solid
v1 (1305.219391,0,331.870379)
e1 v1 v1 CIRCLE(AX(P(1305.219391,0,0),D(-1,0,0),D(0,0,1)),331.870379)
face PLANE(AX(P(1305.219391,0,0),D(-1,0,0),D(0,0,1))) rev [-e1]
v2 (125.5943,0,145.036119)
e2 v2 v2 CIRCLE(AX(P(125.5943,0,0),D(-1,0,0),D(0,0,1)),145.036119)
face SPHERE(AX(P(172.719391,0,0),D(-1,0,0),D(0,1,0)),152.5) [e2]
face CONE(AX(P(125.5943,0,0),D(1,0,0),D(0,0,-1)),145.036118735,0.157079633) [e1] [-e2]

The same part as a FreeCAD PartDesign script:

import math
import FreeCAD as App
import Part
import Sketcher
from FreeCAD import Vector
Q = App.Units.Quantity

doc = App.newDocument("Part")
body = doc.addObject("PartDesign::Body", "Body")

# Sketch on XY plane
sketch1 = body.newObject("Sketcher::SketchObject", "Sketch")
sketch1.AttachmentSupport = (doc.getObject("XY_Plane"), [""])
sketch1.MapMode = "FlatFace"
sketch1.addGeometry(Part.ArcOfCircle(Part.Circle(Vector(172.719391, 0, 0), Vector(0, 0, 1), 152.5), math.radians(108), math.radians(180)), False)
sketch1.addGeometry(Part.LineSegment(Vector(20.219391, 0, 0), Vector(1305.219391, 0, 0)), False)
sketch1.addGeometry(Part.LineSegment(Vector(1305.219391, 0, 0), Vector(1305.219391, 331.870379, 0)), False)
sketch1.addGeometry(Part.LineSegment(Vector(1305.219391, 331.870379, 0), Vector(125.5943, 145.036119, 0)), False)
sketch1.addConstraint(Sketcher.Constraint("Coincident", 0, 2, 1, 1))
sketch1.addConstraint(Sketcher.Constraint("Coincident", 1, 2, 2, 1))
sketch1.addConstraint(Sketcher.Constraint("Coincident", 2, 2, 3, 1))
sketch1.addConstraint(Sketcher.Constraint("Coincident", 3, 2, 0, 1))
sketch1.addConstraint(Sketcher.Constraint("Horizontal", 1))
sketch1.addConstraint(Sketcher.Constraint("Vertical", 2))
sketch1.addConstraint(Sketcher.Constraint("PointOnObject", 0, 3, -1))
sketch1.addConstraint(Sketcher.Constraint("PointOnObject", 0, 2, -1))
sketch1.addConstraint(Sketcher.Constraint("Radius", 0, 152.5))
sketch1.addConstraint(Sketcher.Constraint("DistanceX", 1, 1, 1, 2, 1285.0))
sketch1.addConstraint(Sketcher.Constraint("Angle", 3, Q("-171 deg")))
sketch1.addConstraint(Sketcher.Constraint("DistanceY", 2, 1, 2, 2, 331.870379))
sketch1.addConstraint(Sketcher.Constraint("DistanceX", -1, 1, 3, 2, 125.5943))
revolution = body.newObject("PartDesign::Revolution", "Revolution")
revolution.Profile = sketch1
revolution.ReferenceAxis = (sketch1, ["H_Axis"])
revolution.Angle = 360

doc.recompute()
